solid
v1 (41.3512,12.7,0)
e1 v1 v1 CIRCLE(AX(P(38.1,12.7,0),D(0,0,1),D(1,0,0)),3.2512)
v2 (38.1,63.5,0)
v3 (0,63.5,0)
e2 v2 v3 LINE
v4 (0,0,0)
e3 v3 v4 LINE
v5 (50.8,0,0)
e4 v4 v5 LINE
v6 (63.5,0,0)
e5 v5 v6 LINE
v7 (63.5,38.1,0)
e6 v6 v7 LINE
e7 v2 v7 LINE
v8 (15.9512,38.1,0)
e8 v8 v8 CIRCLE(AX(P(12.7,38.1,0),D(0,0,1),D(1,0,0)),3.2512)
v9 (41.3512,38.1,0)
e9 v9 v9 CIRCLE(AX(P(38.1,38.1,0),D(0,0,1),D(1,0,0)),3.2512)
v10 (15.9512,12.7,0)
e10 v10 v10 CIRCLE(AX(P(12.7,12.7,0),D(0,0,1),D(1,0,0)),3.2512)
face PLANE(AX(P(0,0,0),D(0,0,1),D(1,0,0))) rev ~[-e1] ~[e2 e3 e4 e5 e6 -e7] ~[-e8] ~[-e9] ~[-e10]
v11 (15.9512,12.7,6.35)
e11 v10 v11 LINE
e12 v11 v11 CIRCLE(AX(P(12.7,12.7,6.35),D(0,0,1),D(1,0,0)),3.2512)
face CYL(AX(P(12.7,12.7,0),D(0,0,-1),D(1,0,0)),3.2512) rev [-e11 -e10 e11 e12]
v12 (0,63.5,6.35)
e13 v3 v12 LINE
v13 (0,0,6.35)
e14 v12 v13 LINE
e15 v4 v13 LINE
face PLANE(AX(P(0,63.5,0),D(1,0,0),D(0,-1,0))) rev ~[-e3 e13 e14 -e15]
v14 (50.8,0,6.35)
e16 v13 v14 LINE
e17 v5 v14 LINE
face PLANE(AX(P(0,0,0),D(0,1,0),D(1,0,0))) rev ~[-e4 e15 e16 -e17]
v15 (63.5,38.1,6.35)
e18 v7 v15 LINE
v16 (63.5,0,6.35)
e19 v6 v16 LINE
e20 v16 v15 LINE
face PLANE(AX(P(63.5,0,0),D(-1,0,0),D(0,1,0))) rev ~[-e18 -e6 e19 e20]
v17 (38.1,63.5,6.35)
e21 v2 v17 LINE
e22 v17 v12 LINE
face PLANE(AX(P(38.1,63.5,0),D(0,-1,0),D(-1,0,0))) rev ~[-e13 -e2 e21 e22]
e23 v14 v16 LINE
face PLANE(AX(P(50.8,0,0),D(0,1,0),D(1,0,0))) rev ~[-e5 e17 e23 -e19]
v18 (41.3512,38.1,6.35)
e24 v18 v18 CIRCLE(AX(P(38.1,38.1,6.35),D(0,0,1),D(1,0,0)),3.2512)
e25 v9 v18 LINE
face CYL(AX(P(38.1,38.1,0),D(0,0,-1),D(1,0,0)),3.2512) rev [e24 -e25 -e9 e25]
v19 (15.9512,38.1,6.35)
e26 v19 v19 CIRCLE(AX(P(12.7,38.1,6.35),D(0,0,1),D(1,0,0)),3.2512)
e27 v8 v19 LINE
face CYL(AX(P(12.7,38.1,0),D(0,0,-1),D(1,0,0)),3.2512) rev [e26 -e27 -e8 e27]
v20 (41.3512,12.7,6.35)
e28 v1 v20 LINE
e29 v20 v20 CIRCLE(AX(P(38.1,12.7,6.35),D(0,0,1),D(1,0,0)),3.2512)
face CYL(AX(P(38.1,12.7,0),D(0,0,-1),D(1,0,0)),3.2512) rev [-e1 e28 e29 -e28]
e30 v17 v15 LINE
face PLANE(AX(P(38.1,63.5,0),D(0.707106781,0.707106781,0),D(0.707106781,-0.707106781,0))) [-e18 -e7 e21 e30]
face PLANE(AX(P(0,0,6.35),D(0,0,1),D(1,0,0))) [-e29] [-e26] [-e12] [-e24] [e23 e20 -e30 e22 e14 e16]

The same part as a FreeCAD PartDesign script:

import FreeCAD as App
import Part
import Sketcher
Q = App.Units.Quantity

doc = App.newDocument("Part")
body = doc.addObject("PartDesign::Body", "Body")

# Sketch on XY plane
sketch1 = body.newObject("Sketcher::SketchObject", "Sketch")
sketch1.AttachmentSupport = (doc.getObject("XY_Plane"), [""])
sketch1.MapMode = "FlatFace"
sketch1.addGeometry([
    Part.LineSegment(App.Vector(0, 63.5, 0), App.Vector(0, 0, 0)),  # 0
    Part.LineSegment(App.Vector(0, 0, 0), App.Vector(63.5, 0, 0)),  # 1
    Part.LineSegment(App.Vector(63.5, 0, 0), App.Vector(63.5, 38.1, 0)),  # 2
    Part.LineSegment(App.Vector(63.5, 38.1, 0), App.Vector(38.1, 63.5, 0)),  # 3
    Part.LineSegment(App.Vector(38.1, 63.5, 0), App.Vector(0, 63.5, 0)),  # 4
    Part.Circle(App.Vector(12.7, 12.7, 0), App.Vector(0, 0, 1), 3.2512),  # 5
    Part.Circle(App.Vector(38.1, 12.7, 0), App.Vector(0, 0, 1), 3.2512),  # 6
    Part.Circle(App.Vector(12.7, 38.1, 0), App.Vector(0, 0, 1), 3.2512),  # 7
    Part.Circle(App.Vector(38.1, 38.1, 0), App.Vector(0, 0, 1), 3.2512),  # 8
], False)
sketch1.addConstraint([
    Sketcher.Constraint("Coincident", 0, 2, 1, 1),
    Sketcher.Constraint("Coincident", 1, 2, 2, 1),
    Sketcher.Constraint("Coincident", 2, 2, 3, 1),
    Sketcher.Constraint("Coincident", 3, 2, 4, 1),
    Sketcher.Constraint("Coincident", 4, 2, 0, 1),
    Sketcher.Constraint("Vertical", 0),
    Sketcher.Constraint("Horizontal", 1),
    Sketcher.Constraint("Vertical", 2),
    Sketcher.Constraint("Horizontal", 4),
    Sketcher.Constraint("Coincident", 0, 2, -1, 1),
    Sketcher.Constraint("Equal", 5, 6),
    Sketcher.Constraint("Equal", 6, 7),
    Sketcher.Constraint("Equal", 7, 8),
    Sketcher.Constraint("Horizontal", 5, 3, 6, 3),
    Sketcher.Constraint("Horizontal", 7, 3, 8, 3),
    Sketcher.Constraint("Horizontal", 8, 3, 2, 2),
    Sketcher.Constraint("Vertical", 5, 3, 7, 3),
    Sketcher.Constraint("Vertical", 6, 3, 8, 3),
    Sketcher.Constraint("Vertical", 8, 3, 3, 2),
    Sketcher.Constraint("Equal", 1, 0),
    Sketcher.Constraint("Equal", 4, 2),
    Sketcher.Constraint("Diameter", 5, Q("0.256 in")),
    Sketcher.Constraint("DistanceX", 1, 1, 1, 2, Q("2.5 in")),
    Sketcher.Constraint("DistanceX", 4, 2, 4, 1, Q("1.5 in")),
    Sketcher.Constraint("DistanceX", 5, 3, 6, 3, Q("1 in")),
    Sketcher.Constraint("DistanceY", 5, 3, 7, 3, Q("1 in")),
])
pad1 = body.newObject("PartDesign::Pad", "Pad")
pad1.Profile = sketch1
pad1.Length = Q("0.25 in")

doc.recompute()
